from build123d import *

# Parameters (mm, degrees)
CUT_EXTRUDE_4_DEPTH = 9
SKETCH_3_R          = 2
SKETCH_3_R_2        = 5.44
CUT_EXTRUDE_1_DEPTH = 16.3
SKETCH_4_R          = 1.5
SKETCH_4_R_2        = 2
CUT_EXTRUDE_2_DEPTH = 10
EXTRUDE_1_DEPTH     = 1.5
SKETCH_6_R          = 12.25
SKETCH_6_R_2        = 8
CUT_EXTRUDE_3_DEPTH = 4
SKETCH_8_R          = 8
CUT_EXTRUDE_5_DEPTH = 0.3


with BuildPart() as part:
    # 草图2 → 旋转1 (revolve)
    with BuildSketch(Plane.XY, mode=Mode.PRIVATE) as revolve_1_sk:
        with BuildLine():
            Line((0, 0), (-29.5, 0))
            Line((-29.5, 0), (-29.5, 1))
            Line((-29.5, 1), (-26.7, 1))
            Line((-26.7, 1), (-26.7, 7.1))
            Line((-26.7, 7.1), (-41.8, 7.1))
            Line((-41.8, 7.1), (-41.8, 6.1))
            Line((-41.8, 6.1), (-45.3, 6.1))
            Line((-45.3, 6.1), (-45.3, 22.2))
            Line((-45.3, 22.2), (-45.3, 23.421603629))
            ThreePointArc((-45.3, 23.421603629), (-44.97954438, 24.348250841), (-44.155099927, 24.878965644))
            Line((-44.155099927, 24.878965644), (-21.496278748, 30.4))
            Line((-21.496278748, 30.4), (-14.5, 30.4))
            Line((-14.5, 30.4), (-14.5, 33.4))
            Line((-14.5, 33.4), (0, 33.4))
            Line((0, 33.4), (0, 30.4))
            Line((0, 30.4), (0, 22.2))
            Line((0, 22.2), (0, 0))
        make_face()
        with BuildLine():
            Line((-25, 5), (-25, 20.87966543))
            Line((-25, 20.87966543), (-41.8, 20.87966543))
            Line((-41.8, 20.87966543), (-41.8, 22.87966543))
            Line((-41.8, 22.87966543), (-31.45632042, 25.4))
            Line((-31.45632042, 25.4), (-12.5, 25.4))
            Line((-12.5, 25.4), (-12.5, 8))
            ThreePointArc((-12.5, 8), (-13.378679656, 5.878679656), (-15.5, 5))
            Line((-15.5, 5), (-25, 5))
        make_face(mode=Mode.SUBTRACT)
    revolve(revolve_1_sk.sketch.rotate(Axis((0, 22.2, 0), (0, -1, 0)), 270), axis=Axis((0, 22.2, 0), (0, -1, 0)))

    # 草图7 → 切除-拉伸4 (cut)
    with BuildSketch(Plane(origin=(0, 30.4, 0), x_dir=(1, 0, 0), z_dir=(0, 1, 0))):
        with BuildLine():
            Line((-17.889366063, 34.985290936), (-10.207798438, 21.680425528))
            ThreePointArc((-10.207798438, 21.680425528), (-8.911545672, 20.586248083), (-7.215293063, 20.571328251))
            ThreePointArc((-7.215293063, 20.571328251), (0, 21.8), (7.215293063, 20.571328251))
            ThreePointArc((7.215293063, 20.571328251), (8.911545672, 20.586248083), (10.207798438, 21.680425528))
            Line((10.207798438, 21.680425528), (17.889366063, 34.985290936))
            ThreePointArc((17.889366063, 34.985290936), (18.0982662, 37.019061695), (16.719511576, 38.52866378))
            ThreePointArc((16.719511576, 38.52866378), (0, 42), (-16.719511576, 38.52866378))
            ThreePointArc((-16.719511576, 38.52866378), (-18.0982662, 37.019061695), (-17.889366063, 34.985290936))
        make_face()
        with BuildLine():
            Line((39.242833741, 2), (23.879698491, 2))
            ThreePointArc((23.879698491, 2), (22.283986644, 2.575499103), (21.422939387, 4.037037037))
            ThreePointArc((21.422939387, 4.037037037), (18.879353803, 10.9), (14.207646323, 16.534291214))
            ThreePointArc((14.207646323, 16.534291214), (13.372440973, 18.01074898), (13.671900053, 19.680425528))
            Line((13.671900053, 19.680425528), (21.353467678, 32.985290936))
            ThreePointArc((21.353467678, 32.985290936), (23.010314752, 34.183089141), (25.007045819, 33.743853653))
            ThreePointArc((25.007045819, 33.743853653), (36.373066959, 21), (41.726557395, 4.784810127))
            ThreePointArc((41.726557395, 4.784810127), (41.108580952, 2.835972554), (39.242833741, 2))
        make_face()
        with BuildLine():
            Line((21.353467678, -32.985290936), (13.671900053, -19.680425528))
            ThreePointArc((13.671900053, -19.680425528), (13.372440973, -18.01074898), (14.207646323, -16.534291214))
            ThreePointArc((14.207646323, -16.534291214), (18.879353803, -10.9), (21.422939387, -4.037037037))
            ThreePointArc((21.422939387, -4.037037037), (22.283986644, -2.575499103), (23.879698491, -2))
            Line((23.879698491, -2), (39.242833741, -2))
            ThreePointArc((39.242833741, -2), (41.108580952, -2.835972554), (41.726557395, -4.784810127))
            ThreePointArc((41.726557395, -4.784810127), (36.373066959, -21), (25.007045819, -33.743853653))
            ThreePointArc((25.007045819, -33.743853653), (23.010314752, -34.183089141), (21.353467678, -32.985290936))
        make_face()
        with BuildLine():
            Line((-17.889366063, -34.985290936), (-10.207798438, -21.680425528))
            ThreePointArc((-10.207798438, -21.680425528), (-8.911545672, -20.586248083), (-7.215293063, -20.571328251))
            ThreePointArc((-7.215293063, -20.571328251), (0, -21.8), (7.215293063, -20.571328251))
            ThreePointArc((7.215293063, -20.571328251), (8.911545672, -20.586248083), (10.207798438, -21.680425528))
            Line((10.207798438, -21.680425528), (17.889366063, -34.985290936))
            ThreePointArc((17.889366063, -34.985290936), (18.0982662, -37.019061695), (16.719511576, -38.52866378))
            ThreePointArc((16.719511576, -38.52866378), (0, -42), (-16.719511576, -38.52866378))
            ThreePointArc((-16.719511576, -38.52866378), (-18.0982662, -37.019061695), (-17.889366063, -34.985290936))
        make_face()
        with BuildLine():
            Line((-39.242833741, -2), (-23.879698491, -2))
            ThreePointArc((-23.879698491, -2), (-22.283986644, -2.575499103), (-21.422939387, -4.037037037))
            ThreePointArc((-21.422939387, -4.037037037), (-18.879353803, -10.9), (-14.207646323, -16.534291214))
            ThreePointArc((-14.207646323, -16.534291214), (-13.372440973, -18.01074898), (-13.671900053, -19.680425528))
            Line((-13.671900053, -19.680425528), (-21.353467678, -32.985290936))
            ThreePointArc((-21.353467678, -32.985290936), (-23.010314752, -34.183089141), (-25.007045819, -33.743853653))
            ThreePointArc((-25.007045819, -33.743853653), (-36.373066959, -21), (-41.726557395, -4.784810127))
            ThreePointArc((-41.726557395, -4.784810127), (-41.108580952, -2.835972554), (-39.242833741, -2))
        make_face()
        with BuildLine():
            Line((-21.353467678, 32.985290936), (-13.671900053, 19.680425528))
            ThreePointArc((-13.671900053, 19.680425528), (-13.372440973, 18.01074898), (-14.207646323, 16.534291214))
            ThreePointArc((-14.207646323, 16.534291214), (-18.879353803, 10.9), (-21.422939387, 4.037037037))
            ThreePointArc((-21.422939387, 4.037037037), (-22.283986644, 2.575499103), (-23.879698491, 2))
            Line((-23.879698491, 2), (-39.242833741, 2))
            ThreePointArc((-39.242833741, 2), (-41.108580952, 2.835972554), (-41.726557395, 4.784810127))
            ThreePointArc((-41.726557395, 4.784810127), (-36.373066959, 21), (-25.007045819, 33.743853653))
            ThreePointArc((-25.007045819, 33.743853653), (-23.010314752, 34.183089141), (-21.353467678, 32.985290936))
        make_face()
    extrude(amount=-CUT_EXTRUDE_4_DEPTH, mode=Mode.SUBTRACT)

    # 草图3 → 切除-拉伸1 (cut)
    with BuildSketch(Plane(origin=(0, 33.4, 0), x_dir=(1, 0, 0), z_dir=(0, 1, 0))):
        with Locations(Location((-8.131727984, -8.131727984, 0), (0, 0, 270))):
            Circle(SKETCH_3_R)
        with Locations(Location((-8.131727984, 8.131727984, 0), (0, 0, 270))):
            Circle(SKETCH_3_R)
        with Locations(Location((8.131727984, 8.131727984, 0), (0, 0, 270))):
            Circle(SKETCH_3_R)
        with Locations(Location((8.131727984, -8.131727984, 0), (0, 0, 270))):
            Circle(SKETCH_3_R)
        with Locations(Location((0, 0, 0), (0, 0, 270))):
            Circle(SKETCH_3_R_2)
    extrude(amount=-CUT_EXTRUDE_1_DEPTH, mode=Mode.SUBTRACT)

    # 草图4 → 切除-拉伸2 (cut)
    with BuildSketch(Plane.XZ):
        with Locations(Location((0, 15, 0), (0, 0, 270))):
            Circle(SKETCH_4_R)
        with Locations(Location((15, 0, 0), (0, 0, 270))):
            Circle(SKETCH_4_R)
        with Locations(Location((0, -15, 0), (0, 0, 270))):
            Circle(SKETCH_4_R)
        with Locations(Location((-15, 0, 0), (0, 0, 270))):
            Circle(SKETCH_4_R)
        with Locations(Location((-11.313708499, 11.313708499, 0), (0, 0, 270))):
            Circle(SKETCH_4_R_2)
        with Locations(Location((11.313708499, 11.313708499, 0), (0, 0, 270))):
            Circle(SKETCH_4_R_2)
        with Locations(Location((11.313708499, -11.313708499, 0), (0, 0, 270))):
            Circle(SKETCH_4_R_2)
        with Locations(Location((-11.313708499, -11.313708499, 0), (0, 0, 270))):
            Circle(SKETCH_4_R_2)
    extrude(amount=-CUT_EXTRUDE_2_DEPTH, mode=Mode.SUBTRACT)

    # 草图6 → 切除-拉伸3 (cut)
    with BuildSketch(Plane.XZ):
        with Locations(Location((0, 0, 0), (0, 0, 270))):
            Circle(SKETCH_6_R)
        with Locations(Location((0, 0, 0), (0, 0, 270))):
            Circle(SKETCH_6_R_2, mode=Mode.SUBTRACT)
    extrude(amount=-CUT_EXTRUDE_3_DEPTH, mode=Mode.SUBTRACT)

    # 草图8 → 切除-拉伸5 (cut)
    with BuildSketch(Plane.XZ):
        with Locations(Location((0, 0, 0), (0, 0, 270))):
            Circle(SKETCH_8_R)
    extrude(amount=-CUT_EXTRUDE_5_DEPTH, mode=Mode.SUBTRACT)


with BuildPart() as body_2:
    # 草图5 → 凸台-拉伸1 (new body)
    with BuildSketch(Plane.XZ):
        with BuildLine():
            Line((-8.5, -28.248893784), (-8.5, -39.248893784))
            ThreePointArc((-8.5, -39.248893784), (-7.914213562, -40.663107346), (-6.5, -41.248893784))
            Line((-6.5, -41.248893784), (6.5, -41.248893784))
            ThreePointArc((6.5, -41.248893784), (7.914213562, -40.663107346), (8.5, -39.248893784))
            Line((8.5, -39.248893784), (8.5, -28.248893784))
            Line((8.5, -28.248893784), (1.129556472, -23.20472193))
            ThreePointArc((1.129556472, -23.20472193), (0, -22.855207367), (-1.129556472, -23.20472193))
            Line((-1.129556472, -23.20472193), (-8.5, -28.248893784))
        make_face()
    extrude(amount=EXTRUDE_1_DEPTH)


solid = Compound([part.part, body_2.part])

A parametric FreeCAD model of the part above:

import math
import FreeCAD as App
import Part
import Sketcher
Q = App.Units.Quantity

doc = App.newDocument("Part")
body = doc.addObject("PartDesign::Body", "Body")

# Sketch on XY plane
sketch1 = body.newObject("Sketcher::SketchObject", "Sketch")
sketch1.AttachmentSupport = (doc.getObject("XY_Plane"), [""])
sketch1.MapMode = "FlatFace"
sketch1.addGeometry([
    Part.LineSegment(App.Vector(-29.5, 0, 0), App.Vector(0, 0, 0)),  # 0
    Part.LineSegment(App.Vector(0, 0, 0), App.Vector(0, 33.4, 0)),  # 1
    Part.LineSegment(App.Vector(0, 33.4, 0), App.Vector(-14.5, 33.4, 0)),  # 2
    Part.LineSegment(App.Vector(-14.5, 33.4, 0), App.Vector(-14.5, 30.4, 0)),  # 3
    Part.LineSegment(App.Vector(-14.5, 30.4, 0), App.Vector(-21.5, 30.4, 0)),  # 4
    Part.LineSegment(App.Vector(-21.5, 30.4, 0), App.Vector(-44.2, 24.9, 0)),  # 5
    Part.ArcOfCircle(Part.Circle(App.Vector(-43.8, 23.4, 0), App.Vector(0, 0, 1), 1.5), math.radians(104), math.radians(180)),  # 6
    Part.LineSegment(App.Vector(-45.3, 23.4, 0), App.Vector(-45.3, 6.1, 0)),  # 7
    Part.LineSegment(App.Vector(-45.3, 6.1, 0), App.Vector(-41.8, 6.1, 0)),  # 8
    Part.LineSegment(App.Vector(-41.8, 6.1, 0), App.Vector(-41.8, 7.1, 0)),  # 9
    Part.LineSegment(App.Vector(-41.8, 7.1, 0), App.Vector(-26.7, 7.1, 0)),  # 10
    Part.LineSegment(App.Vector(-26.7, 7.1, 0), App.Vector(-26.7, 1, 0)),  # 11
    Part.LineSegment(App.Vector(-26.7, 1, 0), App.Vector(-29.5, 1, 0)),  # 12
    Part.LineSegment(App.Vector(-29.5, 1, 0), App.Vector(-29.5, 0, 0)),  # 13
    Part.LineSegment(App.Vector(-25, 5, 0), App.Vector(-25, 20.9, 0)),  # 14
    Part.LineSegment(App.Vector(-25, 20.9, 0), App.Vector(-41.8, 20.9, 0)),  # 15
    Part.LineSegment(App.Vector(-41.8, 20.9, 0), App.Vector(-41.8, 22.9, 0)),  # 16
    Part.LineSegment(App.Vector(-41.8, 22.9, 0), App.Vector(-31.5, 25.4, 0)),  # 17
    Part.LineSegment(App.Vector(-31.5, 25.4, 0), App.Vector(-12.5, 25.4, 0)),  # 18
    Part.LineSegment(App.Vector(-12.5, 25.4, 0), App.Vector(-12.5, 8, 0)),  # 19
    Part.ArcOfCircle(Part.Circle(App.Vector(-15.5, 8, 0), App.Vector(0, 0, 1), 3), math.radians(-90), math.radians(0)),  # 20
    Part.LineSegment(App.Vector(-15.5, 5, 0), App.Vector(-25, 5, 0)),  # 21
], False)
sketch1.addConstraint([
    Sketcher.Constraint("Coincident", 0, 2, 1, 1),
    Sketcher.Constraint("Coincident", 1, 2, 2, 1),
    Sketcher.Constraint("Coincident", 2, 2, 3, 1),
    Sketcher.Constraint("Coincident", 3, 2, 4, 1),
    Sketcher.Constraint("Coincident", 4, 2, 5, 1),
    Sketcher.Constraint("Tangent", 5, 2, 6, 1),
    Sketcher.Constraint("Tangent", 6, 2, 7, 1),
    Sketcher.Constraint("Coincident", 7, 2, 8, 1),
    Sketcher.Constraint("Coincident", 8, 2, 9, 1),
    Sketcher.Constraint("Coincident", 9, 2, 10, 1),
    Sketcher.Constraint("Coincident", 10, 2, 11, 1),
    Sketcher.Constraint("Coincident", 11, 2, 12, 1),
    Sketcher.Constraint("Coincident", 12, 2, 13, 1),
    Sketcher.Constraint("Coincident", 13, 2, 0, 1),
    Sketcher.Constraint("Coincident", 14, 2, 15, 1),
    Sketcher.Constraint("Coincident", 15, 2, 16, 1),
    Sketcher.Constraint("Coincident", 16, 2, 17, 1),
    Sketcher.Constraint("Coincident", 17, 2, 18, 1),
    Sketcher.Constraint("Coincident", 18, 2, 19, 1),
    Sketcher.Constraint("Tangent", 19, 2, 20, 2),
    Sketcher.Constraint("Tangent", 20, 1, 21, 1),
    Sketcher.Constraint("Coincident", 21, 2, 14, 1),
    Sketcher.Constraint("Horizontal", 0),
    Sketcher.Constraint("Vertical", 1),
    Sketcher.Constraint("Horizontal", 2),
    Sketcher.Constraint("Vertical", 3),
    Sketcher.Constraint("Horizontal", 4),
    Sketcher.Constraint("Vertical", 7),
    Sketcher.Constraint("Horizontal", 8),
    Sketcher.Constraint("Vertical", 9),
    Sketcher.Constraint("Horizontal", 10),
    Sketcher.Constraint("Vertical", 11),
    Sketcher.Constraint("Horizontal", 12),
    Sketcher.Constraint("Vertical", 13),
    Sketcher.Constraint("Vertical", 14),
    Sketcher.Constraint("Horizontal", 15),
    Sketcher.Constraint("Vertical", 16),
    Sketcher.Constraint("Horizontal", 18),
    Sketcher.Constraint("Vertical", 19),
    Sketcher.Constraint("Horizontal", 21),
    Sketcher.Constraint("Coincident", 0, 2, -1, 1),
    Sketcher.Constraint("Parallel", 5, 17),
    Sketcher.Constraint("Vertical", 9, 2, 15, 2),
    Sketcher.Constraint("Equal", 9, 13),
    Sketcher.Constraint("Radius", 20, 3.0),
    Sketcher.Constraint("Radius", 6, 1.5),
    Sketcher.Constraint("DistanceY", 3, 2, 3, 1, 3.0),
    Sketcher.Constraint("DistanceY", 9, 1, 9, 2, 1.0),
    Sketcher.Constraint("DistanceY", 16, 1, 16, 2, 2.0),
    Sketcher.Constraint("DistanceX", 0, 1, 0, 2, 29.5),
    Sketcher.Constraint("DistanceX", 2, 2, 2, 1, 14.5),
    Sketcher.Constraint("DistanceX", 8, 1, 8, 2, 3.5),
    Sketcher.Constraint("DistanceX", 10, 1, 10, 2, 15.1),
    Sketcher.Constraint("DistanceX", 12, 2, 12, 1, 2.8),
    Sketcher.Constraint("DistanceX", 15, 2, 15, 1, 16.8),
    Sketcher.Constraint("DistanceX", 21, 2, 21, 1, 9.5),
    Sketcher.Constraint("DistanceY", 1, 1, 1, 2, 33.4),
    Sketcher.Constraint("DistanceY", 11, 2, 11, 1, 6.1),
    Sketcher.Constraint("DistanceY", 19, 2, 19, 1, 17.4),
    Sketcher.Constraint("DistanceY", -1, 1, 20, 3, 8.0),
    Sketcher.Constraint("DistanceX", 4, 2, 4, 1, 6.996279),
    Sketcher.Constraint("DistanceX", 18, 1, 18, 2, 18.95632),
    Sketcher.Constraint("DistanceX", 5, 2, -1, 1, 44.1551),
])
revolution = body.newObject("PartDesign::Revolution", "Revolution")
revolution.Profile = sketch1
revolution.ReferenceAxis = (sketch1, ["V_Axis"])
revolution.Angle = 360

# Sketch on XZ plane
sketch2 = body.newObject("Sketcher::SketchObject", "Sketch001")
sketch2.AttachmentSupport = (doc.getObject("XZ_Plane"), [""])
sketch2.MapMode = "FlatFace"
sketch2.AttachmentOffset = App.Placement(App.Vector(0, 0, -30.4), App.Rotation())
sketch2.addGeometry([
    Part.LineSegment(App.Vector(-17.9, -35, 0), App.Vector(-10.2, -21.7, 0)),  # 0
    Part.ArcOfCircle(Part.Circle(App.Vector(-8, -22.9, 0), App.Vector(0, 0, 1), 2.5), math.radians(71), math.radians(150)),  # 1
    Part.ArcOfCircle(Part.Circle(App.Vector(0, 0, 0), App.Vector(0, 0, 1), 21.8), math.radians(-109), math.radians(-71)),  # 2
    Part.ArcOfCircle(Part.Circle(App.Vector(8, -22.9, 0), App.Vector(0, 0, 1), 2.5), math.radians(30), math.radians(109)),  # 3
    Part.LineSegment(App.Vector(10.2, -21.7, 0), App.Vector(17.9, -35, 0)),  # 4
    Part.ArcOfCircle(Part.Circle(App.Vector(15.7, -36.2, 0), App.Vector(0, 0, 1), 2.5), math.radians(-67), math.radians(30)),  # 5
    Part.ArcOfCircle(Part.Circle(App.Vector(0, 0, 0), App.Vector(0, 0, 1), 42), math.radians(-113), math.radians(-67)),  # 6
    Part.ArcOfCircle(Part.Circle(App.Vector(-15.7, -36.2, 0), App.Vector(0, 0, 1), 2.5), math.radians(150), math.radians(247)),  # 7
    Part.LineSegment(App.Vector(23.9, -2, 0), App.Vector(39.2, -2, 0)),  # 8
    Part.ArcOfCircle(Part.Circle(App.Vector(39.2, -4.5, 0), App.Vector(0, 0, 1), 2.5), math.radians(-7), math.radians(90)),  # 9
    Part.ArcOfCircle(Part.Circle(App.Vector(0, 0, 0), App.Vector(0, 0, 1), 42), math.radians(-53), math.radians(-7)),  # 10
    Part.ArcOfCircle(Part.Circle(App.Vector(23.5, -31.7, 0), App.Vector(0, 0, 1), 2.5), math.radians(-150), math.radians(-53)),  # 11
    Part.LineSegment(App.Vector(21.4, -33, 0), App.Vector(13.7, -19.7, 0)),  # 12
    Part.ArcOfCircle(Part.Circle(App.Vector(15.8, -18.4, 0), App.Vector(0, 0, 1), 2.5), math.radians(131), math.radians(210)),  # 13
    Part.ArcOfCircle(Part.Circle(App.Vector(0, 0, 0), App.Vector(0, 0, 1), 21.8), math.radians(-49), math.radians(-11)),  # 14
    Part.ArcOfCircle(Part.Circle(App.Vector(23.9, -4.5, 0), App.Vector(0, 0, 1), 2.5), math.radians(90), math.radians(169)),  # 15
    Part.LineSegment(App.Vector(13.7, 19.7, 0), App.Vector(21.4, 33, 0)),  # 16
    Part.ArcOfCircle(Part.Circle(App.Vector(23.5, 31.7, 0), App.Vector(0, 0, 1), 2.5), math.radians(53), math.radians(150)),  # 17
    Part.ArcOfCircle(Part.Circle(App.Vector(0, 0, 0), App.Vector(0, 0, 1), 42), math.radians(7), math.radians(53)),  # 18
    Part.ArcOfCircle(Part.Circle(App.Vector(39.2, 4.5, 0), App.Vector(0, 0, 1), 2.5), math.radians(-90), math.radians(7)),  # 19
    Part.LineSegment(App.Vector(39.2, 2, 0), App.Vector(23.9, 2, 0)),  # 20
    Part.ArcOfCircle(Part.Circle(App.Vector(23.9, 4.5, 0), App.Vector(0, 0, 1), 2.5), math.radians(-169), math.radians(-90)),  # 21
    Part.ArcOfCircle(Part.Circle(App.Vector(0, 0, 0), App.Vector(0, 0, 1), 21.8), math.radians(11), math.radians(49)),  # 22
    Part.ArcOfCircle(Part.Circle(App.Vector(15.8, 18.4, 0), App.Vector(0, 0, 1), 2.5), math.radians(150), math.radians(229)),  # 23
    Part.LineSegment(App.Vector(-10.2, 21.7, 0), App.Vector(-17.9, 35, 0)),  # 24
    Part.ArcOfCircle(Part.Circle(App.Vector(-15.7, 36.2, 0), App.Vector(0, 0, 1), 2.5), math.radians(113), math.radians(210)),  # 25
    Part.ArcOfCircle(Part.Circle(App.Vector(0, 0, 0), App.Vector(0, 0, 1), 42), math.radians(67), math.radians(113)),  # 26
    Part.ArcOfCircle(Part.Circle(App.Vector(15.7, 36.2, 0), App.Vector(0, 0, 1), 2.5), math.radians(-30), math.radians(67)),  # 27
    Part.LineSegment(App.Vector(17.9, 35, 0), App.Vector(10.2, 21.7, 0)),  # 28
    Part.ArcOfCircle(Part.Circle(App.Vector(8, 22.9, 0), App.Vector(0, 0, 1), 2.5), math.radians(-109), math.radians(-30)),  # 29
    Part.ArcOfCircle(Part.Circle(App.Vector(0, 0, 0), App.Vector(0, 0, 1), 21.8), math.radians(71), math.radians(109)),  # 30
    Part.ArcOfCircle(Part.Circle(App.Vector(-8, 22.9, 0), App.Vector(0, 0, 1), 2.5), math.radians(-150), math.radians(-71)),  # 31
    Part.LineSegment(App.Vector(-23.9, 2, 0), App.Vector(-39.2, 2, 0)),  # 32
    Part.ArcOfCircle(Part.Circle(App.Vector(-39.2, 4.5, 0), App.Vector(0, 0, 1), 2.5), math.radians(173), math.radians(270)),  # 33
    Part.ArcOfCircle(Part.Circle(App.Vector(0, 0, 0), App.Vector(0, 0, 1), 42), math.radians(127), math.radians(173)),  # 34
    Part.ArcOfCircle(Part.Circle(App.Vector(-23.5, 31.7, 0), App.Vector(0, 0, 1), 2.5), math.radians(30), math.radians(127)),  # 35
    Part.LineSegment(App.Vector(-21.4, 33, 0), App.Vector(-13.7, 19.7, 0)),  # 36
    Part.ArcOfCircle(Part.Circle(App.Vector(-15.8, 18.4, 0), App.Vector(0, 0, 1), 2.5), math.radians(-49), math.radians(30)),  # 37
    Part.ArcOfCircle(Part.Circle(App.Vector(0, 0, 0), App.Vector(0, 0, 1), 21.8), math.radians(131), math.radians(169)),  # 38
    Part.ArcOfCircle(Part.Circle(App.Vector(-23.9, 4.5, 0), App.Vector(0, 0, 1), 2.5), math.radians(-90), math.radians(-11)),  # 39
    Part.LineSegment(App.Vector(-13.7, -19.7, 0), App.Vector(-21.4, -33, 0)),  # 40
    Part.ArcOfCircle(Part.Circle(App.Vector(-23.5, -31.7, 0), App.Vector(0, 0, 1), 2.5), math.radians(-127), math.radians(-30)),  # 41
    Part.ArcOfCircle(Part.Circle(App.Vector(0, 0, 0), App.Vector(0, 0, 1), 42), math.radians(-173), math.radians(-127)),  # 42
    Part.ArcOfCircle(Part.Circle(App.Vector(-39.2, -4.5, 0), App.Vector(0, 0, 1), 2.5), math.radians(90), math.radians(187)),  # 43
    Part.LineSegment(App.Vector(-39.2, -2, 0), App.Vector(-23.9, -2, 0)),  # 44
    Part.ArcOfCircle(Part.Circle(App.Vector(-23.9, -4.5, 0), App.Vector(0, 0, 1), 2.5), math.radians(11), math.radians(90)),  # 45
    Part.ArcOfCircle(Part.Circle(App.Vector(0, 0, 0), App.Vector(0, 0, 1), 21.8), math.radians(-169), math.radians(-131)),  # 46
    Part.ArcOfCircle(Part.Circle(App.Vector(-15.8, -18.4, 0), App.Vector(0, 0, 1), 2.5), math.radians(-30), math.radians(49)),  # 47
], False)
sketch2.addConstraint([
    Sketcher.Constraint("Tangent", 0, 2, 1, 2),
    Sketcher.Constraint("Tangent", 1, 1, 2, 1),
    Sketcher.Constraint("Tangent", 2, 2, 3, 2),
    Sketcher.Constraint("Tangent", 3, 1, 4, 1),
    Sketcher.Constraint("Tangent", 4, 2, 5, 2),
    Sketcher.Constraint("Tangent", 5, 1, 6, 2),
    Sketcher.Constraint("Tangent", 6, 1, 7, 2),
    Sketcher.Constraint("Tangent", 7, 1, 0, 1),
    Sketcher.Constraint("Tangent", 8, 2, 9, 2),
    Sketcher.Constraint("Tangent", 9, 1, 10, 2),
    Sketcher.Constraint("Tangent", 10, 1, 11, 2),
    Sketcher.Constraint("Tangent", 11, 1, 12, 1),
    Sketcher.Constraint("Tangent", 12, 2, 13, 2),
    Sketcher.Constraint("Tangent", 13, 1, 14, 1),
    Sketcher.Constraint("Tangent", 14, 2, 15, 2),
    Sketcher.Constraint("Tangent", 15, 1, 8, 1),
    Sketcher.Constraint("Tangent", 16, 2, 17, 2),
    Sketcher.Constraint("Tangent", 17, 1, 18, 2),
    Sketcher.Constraint("Tangent", 18, 1, 19, 2),
    Sketcher.Constraint("Tangent", 19, 1, 20, 1),
    Sketcher.Constraint("Tangent", 20, 2, 21, 2),
    Sketcher.Constraint("Tangent", 21, 1, 22, 1),
    Sketcher.Constraint("Tangent", 22, 2, 23, 2),
    Sketcher.Constraint("Tangent", 23, 1, 16, 1),
    Sketcher.Constraint("Tangent", 24, 2, 25, 2),
    Sketcher.Constraint("Tangent", 25, 1, 26, 2),
    Sketcher.Constraint("Tangent", 26, 1, 27, 2),
    Sketcher.Constraint("Tangent", 27, 1, 28, 1),
    Sketcher.Constraint("Tangent", 28, 2, 29, 2),
    Sketcher.Constraint("Tangent", 29, 1, 30, 1),
    Sketcher.Constraint("Tangent", 30, 2, 31, 2),
    Sketcher.Constraint("Tangent", 31, 1, 24, 1),
    Sketcher.Constraint("Tangent", 32, 2, 33, 2),
    Sketcher.Constraint("Tangent", 33, 1, 34, 2),
    Sketcher.Constraint("Tangent", 34, 1, 35, 2),
    Sketcher.Constraint("Tangent", 35, 1, 36, 1),
    Sketcher.Constraint("Tangent", 36, 2, 37, 2),
    Sketcher.Constraint("Tangent", 37, 1, 38, 1),
    Sketcher.Constraint("Tangent", 38, 2, 39, 2),
    Sketcher.Constraint("Tangent", 39, 1, 32, 1),
    Sketcher.Constraint("Tangent", 40, 2, 41, 2),
    Sketcher.Constraint("Tangent", 41, 1, 42, 2),
    Sketcher.Constraint("Tangent", 42, 1, 43, 2),
    Sketcher.Constraint("Tangent", 43, 1, 44, 1),
    Sketcher.Constraint("Tangent", 44, 2, 45, 2),
    Sketcher.Constraint("Tangent", 45, 1, 46, 1),
    Sketcher.Constraint("Tangent", 46, 2, 47, 2),
    Sketcher.Constraint("Tangent", 47, 1, 40, 1),
    Sketcher.Constraint("Horizontal", 8),
    Sketcher.Constraint("Horizontal", 20),
    Sketcher.Constraint("Horizontal", 32),
    Sketcher.Constraint("Horizontal", 44),
    Sketcher.Constraint("Coincident", 2, 3, -1, 1),
    Sketcher.Constraint("Coincident", 6, 3, -1, 1),
    Sketcher.Constraint("Coincident", 10, 3, -1, 1),
    Sketcher.Constraint("Coincident", 14, 3, -1, 1),
    Sketcher.Constraint("Coincident", 18, 3, -1, 1),
    Sketcher.Constraint("Coincident", 22, 3, -1, 1),
    Sketcher.Constraint("Coincident", 26, 3, -1, 1),
    Sketcher.Constraint("Coincident", 30, 3, -1, 1),
    Sketcher.Constraint("Coincident", 34, 3, -1, 1),
    Sketcher.Constraint("Coincident", 38, 3, -1, 1),
    Sketcher.Constraint("Coincident", 42, 3, -1, 1),
    Sketcher.Constraint("Coincident", 46, 3, -1, 1),
    Sketcher.Constraint("Equal", 1, 3),
    Sketcher.Constraint("Equal", 3, 5),
    Sketcher.Constraint("Equal", 5, 7),
    Sketcher.Constraint("Equal", 7, 9),
    Sketcher.Constraint("Equal", 6, 10),
    Sketcher.Constraint("Equal", 9, 11),
    Sketcher.Constraint("Equal", 11, 13),
    Sketcher.Constraint("Equal", 2, 14),
    Sketcher.Constraint("Equal", 13, 15),
    Sketcher.Constraint("Equal", 15, 17),
    Sketcher.Constraint("Equal", 10, 18),
    Sketcher.Constraint("Equal", 17, 19),
    Sketcher.Constraint("Equal", 19, 21),
    Sketcher.Constraint("Equal", 14, 22),
    Sketcher.Constraint("Equal", 21, 23),
    Sketcher.Constraint("Equal", 23, 25),
    Sketcher.Constraint("Equal", 18, 26),
    Sketcher.Constraint("Equal", 25, 27),
    Sketcher.Constraint("Equal", 27, 29),
    Sketcher.Constraint("Equal", 22, 30),
    Sketcher.Constraint("Equal", 29, 31),
    Sketcher.Constraint("Equal", 31, 33),
    Sketcher.Constraint("Equal", 26, 34),
    Sketcher.Constraint("Equal", 33, 35),
    Sketcher.Constraint("Equal", 35, 37),
    Sketcher.Constraint("Equal", 30, 38),
    Sketcher.Constraint("Equal", 37, 39),
    Sketcher.Constraint("Equal", 39, 41),
    Sketcher.Constraint("Equal", 34, 42),
    Sketcher.Constraint("Equal", 41, 43),
    Sketcher.Constraint("Equal", 43, 45),
    Sketcher.Constraint("Equal", 38, 46),
    Sketcher.Constraint("Equal", 45, 47),
    Sketcher.Constraint("Symmetric", 4, 2, 24, 2, -1, 1),
    Sketcher.Constraint("Symmetric", 7, 1, 27, 1, -1, 1),
    Sketcher.Constraint("Symmetric", 11, 1, 35, 1, -1, 1),
    Sketcher.Constraint("Symmetric", 16, 2, 40, 2, -1, 1),
    Sketcher.Constraint("Symmetric", 0, 2, 3, 1, -2),
    Sketcher.Constraint("Symmetric", 16, 2, 35, 1, -2),
    Sketcher.Constraint("Parallel", 4, 12),
    Sketcher.Constraint("Horizontal", 21, 3, 33, 3),
    Sketcher.Constraint("Horizontal", 15, 3, 43, 3),
    Sketcher.Constraint("Vertical", 9, 3, 19, 3),
    Sketcher.Constraint("Equal", 4, 12),
    Sketcher.Constraint("Radius", 6, 42.0),
    Sketcher.Constraint("Radius", 1, 2.5),
    Sketcher.Constraint("Radius", 2, 21.8),
    Sketcher.Constraint("Angle", 0, Q("60 deg")),
    Sketcher.Constraint("DistanceY", 8, 2, -1, 1, 2.0),
    Sketcher.Constraint("DistanceX", 0, 2, -1, 1, 10.207798),
])
pocket1 = body.newObject("PartDesign::Pocket", "Pocket")
pocket1.Profile = sketch2
pocket1.Length = 9
pocket1.Reversed = True

# Sketch on XZ plane
sketch3 = body.newObject("Sketcher::SketchObject", "Sketch002")
sketch3.AttachmentSupport = (doc.getObject("XZ_Plane"), [""])
sketch3.MapMode = "FlatFace"
sketch3.AttachmentOffset = App.Placement(App.Vector(0, 0, -33.4), App.Rotation())
sketch3.addGeometry([
    Part.Circle(App.Vector(-8.1, 8.1, 0), App.Vector(0, 0, 1), 2),  # 0
    Part.Circle(App.Vector(-8.1, -8.1, 0), App.Vector(0, 0, 1), 2),  # 1
    Part.Circle(App.Vector(8.1, -8.1, 0), App.Vector(0, 0, 1), 2),  # 2
    Part.Circle(App.Vector(8.1, 8.1, 0), App.Vector(0, 0, 1), 2),  # 3
    Part.Circle(App.Vector(0, 0, 0), App.Vector(0, 0, 1), 5.4),  # 4
], False)
sketch3.addConstraint([
    Sketcher.Constraint("Coincident", 4, 3, -1, 1),
    Sketcher.Constraint("Equal", 0, 1),
    Sketcher.Constraint("Equal", 1, 2),
    Sketcher.Constraint("Equal", 2, 3),
    Sketcher.Constraint("Symmetric", 0, 3, 2, 3, -1, 1),
    Sketcher.Constraint("Symmetric", 1, 3, 3, 3, -1, 1),
    Sketcher.Constraint("Symmetric", 1, 3, 2, 3, -2),
    Sketcher.Constraint("Diameter", 0, 4.0),
    Sketcher.Constraint("Diameter", 4, 10.88),
    Sketcher.Constraint("DistanceX", 0, 3, -1, 1, 8.131728),
    Sketcher.Constraint("DistanceY", -1, 1, 0, 3, 8.131728),
])
pocket2 = body.newObject("PartDesign::Pocket", "Pocket001")
pocket2.Profile = sketch3
pocket2.Length = 16.3
pocket2.Reversed = True

# Sketch on XZ plane
sketch4 = body.newObject("Sketcher::SketchObject", "Sketch003")
sketch4.AttachmentSupport = (doc.getObject("XZ_Plane"), [""])
sketch4.MapMode = "FlatFace"
sketch4.addGeometry([
    Part.Circle(App.Vector(0, 15, 0), App.Vector(0, 0, 1), 1.5),  # 0
    Part.Circle(App.Vector(15, 0, 0), App.Vector(0, 0, 1), 1.5),  # 1
    Part.Circle(App.Vector(0, -15, 0), App.Vector(0, 0, 1), 1.5),  # 2
    Part.Circle(App.Vector(-15, 0, 0), App.Vector(0, 0, 1), 1.5),  # 3
    Part.Circle(App.Vector(-11.3, 11.3, 0), App.Vector(0, 0, 1), 2),  # 4
    Part.Circle(App.Vector(11.3, 11.3, 0), App.Vector(0, 0, 1), 2),  # 5
    Part.Circle(App.Vector(11.3, -11.3, 0), App.Vector(0, 0, 1), 2),  # 6
    Part.Circle(App.Vector(-11.3, -11.3, 0), App.Vector(0, 0, 1), 2),  # 7
], False)
sketch4.addConstraint([
    Sketcher.Constraint("Equal", 0, 1),
    Sketcher.Constraint("Equal", 1, 2),
    Sketcher.Constraint("Equal", 2, 3),
    Sketcher.Constraint("Equal", 4, 5),
    Sketcher.Constraint("Equal", 5, 6),
    Sketcher.Constraint("Equal", 6, 7),
    Sketcher.Constraint("Symmetric", 0, 3, 2, 3, -1, 1),
    Sketcher.Constraint("Symmetric", 1, 3, 3, 3, -1, 1),
    Sketcher.Constraint("Symmetric", 4, 3, 6, 3, -1, 1),
    Sketcher.Constraint("Symmetric", 5, 3, 7, 3, -1, 1),
    Sketcher.Constraint("Symmetric", 4, 3, 5, 3, -2),
    Sketcher.Constraint("PointOnObject", 0, 3, -2),
    Sketcher.Constraint("PointOnObject", 1, 3, -1),
    Sketcher.Constraint("Diameter", 0, 3.0),
    Sketcher.Constraint("Diameter", 4, 4.0),
    Sketcher.Constraint("DistanceY", -1, 1, 0, 3, 15.0),
    Sketcher.Constraint("DistanceX", -1, 1, 1, 3, 15.0),
    Sketcher.Constraint("DistanceX", 4, 3, -1, 1, 11.313708),
    Sketcher.Constraint("DistanceY", -1, 1, 4, 3, 11.313708),
])
pocket3 = body.newObject("PartDesign::Pocket", "Pocket002")
pocket3.Profile = sketch4
pocket3.Length = 10

# Sketch on XZ plane
sketch5 = body.newObject("Sketcher::SketchObject", "Sketch004")
sketch5.AttachmentSupport = (doc.getObject("XZ_Plane"), [""])
sketch5.MapMode = "FlatFace"
sketch5.addGeometry([
    Part.Circle(App.Vector(0, 0, 0), App.Vector(0, 0, 1), 12),
    Part.Circle(App.Vector(0, 0, 0), App.Vector(0, 0, 1), 8),
], False)
sketch5.addConstraint([
    Sketcher.Constraint("Coincident", 0, 3, -1, 1),
    Sketcher.Constraint("Coincident", 1, 3, -1, 1),
    Sketcher.Constraint("Diameter", 1, 16.0),
    Sketcher.Constraint("Diameter", 0, 24.5),
])
pocket4 = body.newObject("PartDesign::Pocket", "Pocket003")
pocket4.Profile = sketch5
pocket4.Length = 4

# Sketch on XZ plane
sketch6 = body.newObject("Sketcher::SketchObject", "Sketch005")
sketch6.AttachmentSupport = (doc.getObject("XZ_Plane"), [""])
sketch6.MapMode = "FlatFace"
sketch6.addGeometry(Part.Circle(App.Vector(0, 0, 0), App.Vector(0, 0, 1), 8), False)
sketch6.addConstraint([
    Sketcher.Constraint("Coincident", 0, 3, -1, 1),
    Sketcher.Constraint("Diameter", 0, 16.0),
])
pocket5 = body.newObject("PartDesign::Pocket", "Pocket004")
pocket5.Profile = sketch6
pocket5.Length = 0.3
body2 = doc.addObject("PartDesign::Body", "Body001")

# Sketch on XZ plane
sketch7 = body2.newObject("Sketcher::SketchObject", "Sketch006")
sketch7.AttachmentSupport = (doc.getObject("XZ_Plane001"), [""])
sketch7.MapMode = "FlatFace"
sketch7.addGeometry([
    Part.LineSegment(App.Vector(-8.5, -28.2, 0), App.Vector(-8.5, -39.2, 0)),  # 0
    Part.ArcOfCircle(Part.Circle(App.Vector(-6.5, -39.2, 0), App.Vector(0, 0, 1), 2), math.radians(-180), math.radians(-90)),  # 1
    Part.LineSegment(App.Vector(-6.5, -41.2, 0), App.Vector(6.5, -41.2, 0)),  # 2
    Part.ArcOfCircle(Part.Circle(App.Vector(6.5, -39.2, 0), App.Vector(0, 0, 1), 2), math.radians(-90), math.radians(0)),  # 3
    Part.LineSegment(App.Vector(8.5, -39.2, 0), App.Vector(8.5, -28.2, 0)),  # 4
    Part.LineSegment(App.Vector(8.5, -28.2, 0), App.Vector(1.1, -23.2, 0)),  # 5
    Part.ArcOfCircle(Part.Circle(App.Vector(0, -24.9, 0), App.Vector(0, 0, 1), 2), math.radians(56), math.radians(124)),  # 6
    Part.LineSegment(App.Vector(-1.1, -23.2, 0), App.Vector(-8.5, -28.2, 0)),  # 7
], False)
sketch7.addConstraint([
    Sketcher.Constraint("Tangent", 0, 2, 1, 1),
    Sketcher.Constraint("Tangent", 1, 2, 2, 1),
    Sketcher.Constraint("Tangent", 2, 2, 3, 1),
    Sketcher.Constraint("Tangent", 3, 2, 4, 1),
    Sketcher.Constraint("Coincident", 4, 2, 5, 1),
    Sketcher.Constraint("Tangent", 5, 2, 6, 1),
    Sketcher.Constraint("Tangent", 6, 2, 7, 1),
    Sketcher.Constraint("Coincident", 7, 2, 0, 1),
    Sketcher.Constraint("Vertical", 0),
    Sketcher.Constraint("Horizontal", 2),
    Sketcher.Constraint("Vertical", 4),
    Sketcher.Constraint("Equal", 1, 3),
    Sketcher.Constraint("Equal", 3, 6),
    Sketcher.Constraint("Symmetric", 5, 2, 6, 2, -2),
    Sketcher.Constraint("Horizontal", 4, 2, 7, 2),
    Sketcher.Constraint("Radius", 1, 2.0),
    Sketcher.Constraint("DistanceX", 2, 1, 2, 2, 13.0),
    Sketcher.Constraint("DistanceY", 0, 2, 0, 1, 11.0),
    Sketcher.Constraint("DistanceY", 5, 2, -1, 1, 23.204722),
    Sketcher.Constraint("DistanceY", 4, 2, 5, 2, 5.044172),
])
pad1 = body2.newObject("PartDesign::Pad", "Pad")
pad1.Profile = sketch7
pad1.Length = 1.5

doc.recompute()
